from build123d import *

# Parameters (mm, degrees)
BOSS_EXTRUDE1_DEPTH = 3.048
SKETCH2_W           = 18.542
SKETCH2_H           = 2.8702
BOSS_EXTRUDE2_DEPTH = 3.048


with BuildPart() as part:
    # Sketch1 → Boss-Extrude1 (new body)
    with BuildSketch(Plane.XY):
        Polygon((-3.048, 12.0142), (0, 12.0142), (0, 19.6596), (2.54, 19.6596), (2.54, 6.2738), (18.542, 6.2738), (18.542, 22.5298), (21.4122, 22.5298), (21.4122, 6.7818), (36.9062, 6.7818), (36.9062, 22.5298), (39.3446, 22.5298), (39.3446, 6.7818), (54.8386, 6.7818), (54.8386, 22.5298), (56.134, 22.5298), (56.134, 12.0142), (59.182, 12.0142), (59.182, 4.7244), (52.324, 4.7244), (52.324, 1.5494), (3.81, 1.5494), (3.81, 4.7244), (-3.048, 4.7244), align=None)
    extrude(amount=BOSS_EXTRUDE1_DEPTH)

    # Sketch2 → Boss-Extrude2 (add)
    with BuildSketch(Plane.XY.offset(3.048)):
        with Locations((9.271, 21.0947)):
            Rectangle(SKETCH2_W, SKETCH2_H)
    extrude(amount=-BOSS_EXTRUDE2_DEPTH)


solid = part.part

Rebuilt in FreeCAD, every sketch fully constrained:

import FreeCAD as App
import Part
import Sketcher
Q = App.Units.Quantity

doc = App.newDocument("Part")
body = doc.addObject("PartDesign::Body", "Body")

# Sketch on XY plane
sketch1 = body.newObject("Sketcher::SketchObject", "Sketch")
sketch1.AttachmentSupport = (doc.getObject("XY_Plane"), [""])
sketch1.MapMode = "FlatFace"
sketch1.addGeometry([
    Part.LineSegment(App.Vector(0, 12, 0), App.Vector(-3, 12, 0)),  # 0
    Part.LineSegment(App.Vector(-3, 12, 0), App.Vector(-3, 4.7, 0)),  # 1
    Part.LineSegment(App.Vector(-3, 4.7, 0), App.Vector(3.8, 4.7, 0)),  # 2
    Part.LineSegment(App.Vector(3.8, 4.7, 0), App.Vector(3.8, 1.5, 0)),  # 3
    Part.LineSegment(App.Vector(3.8, 1.5, 0), App.Vector(52.3, 1.5, 0)),  # 4
    Part.LineSegment(App.Vector(52.3, 1.5, 0), App.Vector(52.3, 4.7, 0)),  # 5
    Part.LineSegment(App.Vector(52.3, 4.7, 0), App.Vector(59.2, 4.7, 0)),  # 6
    Part.LineSegment(App.Vector(59.2, 4.7, 0), App.Vector(59.2, 12, 0)),  # 7
    Part.LineSegment(App.Vector(59.2, 12, 0), App.Vector(56.1, 12, 0)),  # 8
    Part.LineSegment(App.Vector(56.1, 12, 0), App.Vector(56.1, 22.5, 0)),  # 9
    Part.LineSegment(App.Vector(56.1, 22.5, 0), App.Vector(54.8, 22.5, 0)),  # 10
    Part.LineSegment(App.Vector(54.8, 22.5, 0), App.Vector(54.8, 6.8, 0)),  # 11
    Part.LineSegment(App.Vector(54.8, 6.8, 0), App.Vector(39.3, 6.8, 0)),  # 12
    Part.LineSegment(App.Vector(39.3, 6.8, 0), App.Vector(39.3, 22.5, 0)),  # 13
    Part.LineSegment(App.Vector(39.3, 22.5, 0), App.Vector(36.9, 22.5, 0)),  # 14
    Part.LineSegment(App.Vector(36.9, 22.5, 0), App.Vector(36.9, 6.8, 0)),  # 15
    Part.LineSegment(App.Vector(36.9, 6.8, 0), App.Vector(21.4, 6.8, 0)),  # 16
    Part.LineSegment(App.Vector(21.4, 6.8, 0), App.Vector(21.4, 22.5, 0)),  # 17
    Part.LineSegment(App.Vector(21.4, 22.5, 0), App.Vector(18.5, 22.5, 0)),  # 18
    Part.LineSegment(App.Vector(18.5, 22.5, 0), App.Vector(18.5, 6.3, 0)),  # 19
    Part.LineSegment(App.Vector(18.5, 6.3, 0), App.Vector(2.5, 6.3, 0)),  # 20
    Part.LineSegment(App.Vector(2.5, 6.3, 0), App.Vector(2.5, 19.7, 0)),  # 21
    Part.LineSegment(App.Vector(2.5, 19.7, 0), App.Vector(0, 19.7, 0)),  # 22
    Part.LineSegment(App.Vector(0, 19.7, 0), App.Vector(0, 12, 0)),  # 23
], False)
sketch1.addConstraint([
    Sketcher.Constraint("Coincident", 0, 2, 1, 1),
    Sketcher.Constraint("Coincident", 1, 2, 2, 1),
    Sketcher.Constraint("Coincident", 2, 2, 3, 1),
    Sketcher.Constraint("Coincident", 3, 2, 4, 1),
    Sketcher.Constraint("Coincident", 4, 2, 5, 1),
    Sketcher.Constraint("Coincident", 5, 2, 6, 1),
    Sketcher.Constraint("Coincident", 6, 2, 7, 1),
    Sketcher.Constraint("Coincident", 7, 2, 8, 1),
    Sketcher.Constraint("Coincident", 8, 2, 9, 1),
    Sketcher.Constraint("Coincident", 9, 2, 10, 1),
    Sketcher.Constraint("Coincident", 10, 2, 11, 1),
    Sketcher.Constraint("Coincident", 11, 2, 12, 1),
    Sketcher.Constraint("Coincident", 12, 2, 13, 1),
    Sketcher.Constraint("Coincident", 13, 2, 14, 1),
    Sketcher.Constraint("Coincident", 14, 2, 15, 1),
    Sketcher.Constraint("Coincident", 15, 2, 16, 1),
    Sketcher.Constraint("Coincident", 16, 2, 17, 1),
    Sketcher.Constraint("Coincident", 17, 2, 18, 1),
    Sketcher.Constraint("Coincident", 18, 2, 19, 1),
    Sketcher.Constraint("Coincident", 19, 2, 20, 1),
    Sketcher.Constraint("Coincident", 20, 2, 21, 1),
    Sketcher.Constraint("Coincident", 21, 2, 22, 1),
    Sketcher.Constraint("Coincident", 22, 2, 23, 1),
    Sketcher.Constraint("Coincident", 23, 2, 0, 1),
    Sketcher.Constraint("Horizontal", 0),
    Sketcher.Constraint("Vertical", 1),
    Sketcher.Constraint("Horizontal", 2),
    Sketcher.Constraint("Vertical", 3),
    Sketcher.Constraint("Horizontal", 4),
    Sketcher.Constraint("Vertical", 5),
    Sketcher.Constraint("Horizontal", 6),
    Sketcher.Constraint("Vertical", 7),
    Sketcher.Constraint("Horizontal", 8),
    Sketcher.Constraint("Vertical", 9),
    Sketcher.Constraint("Horizontal", 10),
    Sketcher.Constraint("Vertical", 11),
    Sketcher.Constraint("Horizontal", 12),
    Sketcher.Constraint("Vertical", 13),
    Sketcher.Constraint("Horizontal", 14),
    Sketcher.Constraint("Vertical", 15),
    Sketcher.Constraint("Horizontal", 16),
    Sketcher.Constraint("Vertical", 17),
    Sketcher.Constraint("Horizontal", 18),
    Sketcher.Constraint("Vertical", 19),
    Sketcher.Constraint("Horizontal", 20),
    Sketcher.Constraint("Vertical", 21),
    Sketcher.Constraint("Horizontal", 22),
    Sketcher.Constraint("Vertical", 23),
    Sketcher.Constraint("PointOnObject", 22, 2, -2),
    Sketcher.Constraint("Horizontal", 2, 2, 5, 2),
    Sketcher.Constraint("Horizontal", 0, 2, 7, 2),
    Sketcher.Constraint("Horizontal", 10, 2, 13, 2),
    Sketcher.Constraint("Horizontal", 12, 2, 15, 2),
    Sketcher.Constraint("Horizontal", 14, 2, 17, 2),
    Sketcher.Constraint("Equal", 2, 6),
    Sketcher.Constraint("Equal", 0, 8),
    Sketcher.Constraint("Equal", 12, 16),
    Sketcher.Constraint("DistanceX", 22, 2, 22, 1, Q("0.1 in")),
    Sketcher.Constraint("DistanceX", 0, 2, 0, 1, Q("0.12 in")),
    Sketcher.Constraint("DistanceX", 2, 1, 2, 2, Q("0.27 in")),
    Sketcher.Constraint("DistanceX", 4, 1, 4, 2, Q("1.91 in")),
    Sketcher.Constraint("DistanceX", 12, 2, 12, 1, Q("0.61 in")),
    Sketcher.Constraint("DistanceX", 20, 2, 20, 1, Q("0.63 in")),
    Sketcher.Constraint("DistanceY", 11, 2, 11, 1, Q("0.62 in")),
    Sketcher.Constraint("DistanceY", 19, 2, 19, 1, Q("0.64 in")),
    Sketcher.Constraint("DistanceX", 10, 2, 10, 1, Q("0.051 in")),
    Sketcher.Constraint("DistanceX", 14, 2, 14, 1, Q("0.096 in")),
    Sketcher.Constraint("DistanceY", 1, 2, 1, 1, Q("0.287 in")),
    Sketcher.Constraint("DistanceY", 3, 2, 3, 1, Q("0.125 in")),
    Sketcher.Constraint("DistanceY", 9, 1, 9, 2, Q("0.414 in")),
    Sketcher.Constraint("DistanceY", 21, 1, 21, 2, Q("0.527 in")),
    Sketcher.Constraint("DistanceY", -1, 1, 0, 2, Q("0.473 in")),
])
pad1 = body.newObject("PartDesign::Pad", "Pad")
pad1.Profile = sketch1
pad1.Length = Q("0.12 in")

# Sketch on XY plane
sketch2 = body.newObject("Sketcher::SketchObject", "Sketch001")
sketch2.AttachmentSupport = (doc.getObject("XY_Plane"), [""])
sketch2.MapMode = "FlatFace"
sketch2.AttachmentOffset = App.Placement(App.Vector(0, 0, 0.12 * 25.4), App.Rotation())
sketch2.addGeometry([
    Part.LineSegment(App.Vector(0, 22.5, 0), App.Vector(0, 19.7, 0)),
    Part.LineSegment(App.Vector(0, 19.7, 0), App.Vector(18.5, 19.7, 0)),
    Part.LineSegment(App.Vector(18.5, 19.7, 0), App.Vector(18.5, 22.5, 0)),
    Part.LineSegment(App.Vector(18.5, 22.5, 0), App.Vector(0, 22.5, 0)),
], False)
sketch2.addConstraint([
    Sketcher.Constraint("Coincident", 0, 2, 1, 1),
    Sketcher.Constraint("Coincident", 1, 2, 2, 1),
    Sketcher.Constraint("Coincident", 2, 2, 3, 1),
    Sketcher.Constraint("Coincident", 3, 2, 0, 1),
    Sketcher.Constraint("Vertical", 0),
    Sketcher.Constraint("Horizontal", 1),
    Sketcher.Constraint("Vertical", 2),
    Sketcher.Constraint("Horizontal", 3),
    Sketcher.Constraint("PointOnObject", 0, 2, -2),
    Sketcher.Constraint("DistanceX", 1, 1, 1, 2, Q("0.73 in")),
    Sketcher.Constraint("DistanceY", 0, 2, 0, 1, Q("0.113 in")),
    Sketcher.Constraint("DistanceY", -1, 1, 0, 2, Q("0.774 in")),
])
pad2 = body.newObject("PartDesign::Pad", "Pad001")
pad2.Profile = sketch2
pad2.Length = Q("0.12 in")
pad2.Reversed = True

doc.recompute()
